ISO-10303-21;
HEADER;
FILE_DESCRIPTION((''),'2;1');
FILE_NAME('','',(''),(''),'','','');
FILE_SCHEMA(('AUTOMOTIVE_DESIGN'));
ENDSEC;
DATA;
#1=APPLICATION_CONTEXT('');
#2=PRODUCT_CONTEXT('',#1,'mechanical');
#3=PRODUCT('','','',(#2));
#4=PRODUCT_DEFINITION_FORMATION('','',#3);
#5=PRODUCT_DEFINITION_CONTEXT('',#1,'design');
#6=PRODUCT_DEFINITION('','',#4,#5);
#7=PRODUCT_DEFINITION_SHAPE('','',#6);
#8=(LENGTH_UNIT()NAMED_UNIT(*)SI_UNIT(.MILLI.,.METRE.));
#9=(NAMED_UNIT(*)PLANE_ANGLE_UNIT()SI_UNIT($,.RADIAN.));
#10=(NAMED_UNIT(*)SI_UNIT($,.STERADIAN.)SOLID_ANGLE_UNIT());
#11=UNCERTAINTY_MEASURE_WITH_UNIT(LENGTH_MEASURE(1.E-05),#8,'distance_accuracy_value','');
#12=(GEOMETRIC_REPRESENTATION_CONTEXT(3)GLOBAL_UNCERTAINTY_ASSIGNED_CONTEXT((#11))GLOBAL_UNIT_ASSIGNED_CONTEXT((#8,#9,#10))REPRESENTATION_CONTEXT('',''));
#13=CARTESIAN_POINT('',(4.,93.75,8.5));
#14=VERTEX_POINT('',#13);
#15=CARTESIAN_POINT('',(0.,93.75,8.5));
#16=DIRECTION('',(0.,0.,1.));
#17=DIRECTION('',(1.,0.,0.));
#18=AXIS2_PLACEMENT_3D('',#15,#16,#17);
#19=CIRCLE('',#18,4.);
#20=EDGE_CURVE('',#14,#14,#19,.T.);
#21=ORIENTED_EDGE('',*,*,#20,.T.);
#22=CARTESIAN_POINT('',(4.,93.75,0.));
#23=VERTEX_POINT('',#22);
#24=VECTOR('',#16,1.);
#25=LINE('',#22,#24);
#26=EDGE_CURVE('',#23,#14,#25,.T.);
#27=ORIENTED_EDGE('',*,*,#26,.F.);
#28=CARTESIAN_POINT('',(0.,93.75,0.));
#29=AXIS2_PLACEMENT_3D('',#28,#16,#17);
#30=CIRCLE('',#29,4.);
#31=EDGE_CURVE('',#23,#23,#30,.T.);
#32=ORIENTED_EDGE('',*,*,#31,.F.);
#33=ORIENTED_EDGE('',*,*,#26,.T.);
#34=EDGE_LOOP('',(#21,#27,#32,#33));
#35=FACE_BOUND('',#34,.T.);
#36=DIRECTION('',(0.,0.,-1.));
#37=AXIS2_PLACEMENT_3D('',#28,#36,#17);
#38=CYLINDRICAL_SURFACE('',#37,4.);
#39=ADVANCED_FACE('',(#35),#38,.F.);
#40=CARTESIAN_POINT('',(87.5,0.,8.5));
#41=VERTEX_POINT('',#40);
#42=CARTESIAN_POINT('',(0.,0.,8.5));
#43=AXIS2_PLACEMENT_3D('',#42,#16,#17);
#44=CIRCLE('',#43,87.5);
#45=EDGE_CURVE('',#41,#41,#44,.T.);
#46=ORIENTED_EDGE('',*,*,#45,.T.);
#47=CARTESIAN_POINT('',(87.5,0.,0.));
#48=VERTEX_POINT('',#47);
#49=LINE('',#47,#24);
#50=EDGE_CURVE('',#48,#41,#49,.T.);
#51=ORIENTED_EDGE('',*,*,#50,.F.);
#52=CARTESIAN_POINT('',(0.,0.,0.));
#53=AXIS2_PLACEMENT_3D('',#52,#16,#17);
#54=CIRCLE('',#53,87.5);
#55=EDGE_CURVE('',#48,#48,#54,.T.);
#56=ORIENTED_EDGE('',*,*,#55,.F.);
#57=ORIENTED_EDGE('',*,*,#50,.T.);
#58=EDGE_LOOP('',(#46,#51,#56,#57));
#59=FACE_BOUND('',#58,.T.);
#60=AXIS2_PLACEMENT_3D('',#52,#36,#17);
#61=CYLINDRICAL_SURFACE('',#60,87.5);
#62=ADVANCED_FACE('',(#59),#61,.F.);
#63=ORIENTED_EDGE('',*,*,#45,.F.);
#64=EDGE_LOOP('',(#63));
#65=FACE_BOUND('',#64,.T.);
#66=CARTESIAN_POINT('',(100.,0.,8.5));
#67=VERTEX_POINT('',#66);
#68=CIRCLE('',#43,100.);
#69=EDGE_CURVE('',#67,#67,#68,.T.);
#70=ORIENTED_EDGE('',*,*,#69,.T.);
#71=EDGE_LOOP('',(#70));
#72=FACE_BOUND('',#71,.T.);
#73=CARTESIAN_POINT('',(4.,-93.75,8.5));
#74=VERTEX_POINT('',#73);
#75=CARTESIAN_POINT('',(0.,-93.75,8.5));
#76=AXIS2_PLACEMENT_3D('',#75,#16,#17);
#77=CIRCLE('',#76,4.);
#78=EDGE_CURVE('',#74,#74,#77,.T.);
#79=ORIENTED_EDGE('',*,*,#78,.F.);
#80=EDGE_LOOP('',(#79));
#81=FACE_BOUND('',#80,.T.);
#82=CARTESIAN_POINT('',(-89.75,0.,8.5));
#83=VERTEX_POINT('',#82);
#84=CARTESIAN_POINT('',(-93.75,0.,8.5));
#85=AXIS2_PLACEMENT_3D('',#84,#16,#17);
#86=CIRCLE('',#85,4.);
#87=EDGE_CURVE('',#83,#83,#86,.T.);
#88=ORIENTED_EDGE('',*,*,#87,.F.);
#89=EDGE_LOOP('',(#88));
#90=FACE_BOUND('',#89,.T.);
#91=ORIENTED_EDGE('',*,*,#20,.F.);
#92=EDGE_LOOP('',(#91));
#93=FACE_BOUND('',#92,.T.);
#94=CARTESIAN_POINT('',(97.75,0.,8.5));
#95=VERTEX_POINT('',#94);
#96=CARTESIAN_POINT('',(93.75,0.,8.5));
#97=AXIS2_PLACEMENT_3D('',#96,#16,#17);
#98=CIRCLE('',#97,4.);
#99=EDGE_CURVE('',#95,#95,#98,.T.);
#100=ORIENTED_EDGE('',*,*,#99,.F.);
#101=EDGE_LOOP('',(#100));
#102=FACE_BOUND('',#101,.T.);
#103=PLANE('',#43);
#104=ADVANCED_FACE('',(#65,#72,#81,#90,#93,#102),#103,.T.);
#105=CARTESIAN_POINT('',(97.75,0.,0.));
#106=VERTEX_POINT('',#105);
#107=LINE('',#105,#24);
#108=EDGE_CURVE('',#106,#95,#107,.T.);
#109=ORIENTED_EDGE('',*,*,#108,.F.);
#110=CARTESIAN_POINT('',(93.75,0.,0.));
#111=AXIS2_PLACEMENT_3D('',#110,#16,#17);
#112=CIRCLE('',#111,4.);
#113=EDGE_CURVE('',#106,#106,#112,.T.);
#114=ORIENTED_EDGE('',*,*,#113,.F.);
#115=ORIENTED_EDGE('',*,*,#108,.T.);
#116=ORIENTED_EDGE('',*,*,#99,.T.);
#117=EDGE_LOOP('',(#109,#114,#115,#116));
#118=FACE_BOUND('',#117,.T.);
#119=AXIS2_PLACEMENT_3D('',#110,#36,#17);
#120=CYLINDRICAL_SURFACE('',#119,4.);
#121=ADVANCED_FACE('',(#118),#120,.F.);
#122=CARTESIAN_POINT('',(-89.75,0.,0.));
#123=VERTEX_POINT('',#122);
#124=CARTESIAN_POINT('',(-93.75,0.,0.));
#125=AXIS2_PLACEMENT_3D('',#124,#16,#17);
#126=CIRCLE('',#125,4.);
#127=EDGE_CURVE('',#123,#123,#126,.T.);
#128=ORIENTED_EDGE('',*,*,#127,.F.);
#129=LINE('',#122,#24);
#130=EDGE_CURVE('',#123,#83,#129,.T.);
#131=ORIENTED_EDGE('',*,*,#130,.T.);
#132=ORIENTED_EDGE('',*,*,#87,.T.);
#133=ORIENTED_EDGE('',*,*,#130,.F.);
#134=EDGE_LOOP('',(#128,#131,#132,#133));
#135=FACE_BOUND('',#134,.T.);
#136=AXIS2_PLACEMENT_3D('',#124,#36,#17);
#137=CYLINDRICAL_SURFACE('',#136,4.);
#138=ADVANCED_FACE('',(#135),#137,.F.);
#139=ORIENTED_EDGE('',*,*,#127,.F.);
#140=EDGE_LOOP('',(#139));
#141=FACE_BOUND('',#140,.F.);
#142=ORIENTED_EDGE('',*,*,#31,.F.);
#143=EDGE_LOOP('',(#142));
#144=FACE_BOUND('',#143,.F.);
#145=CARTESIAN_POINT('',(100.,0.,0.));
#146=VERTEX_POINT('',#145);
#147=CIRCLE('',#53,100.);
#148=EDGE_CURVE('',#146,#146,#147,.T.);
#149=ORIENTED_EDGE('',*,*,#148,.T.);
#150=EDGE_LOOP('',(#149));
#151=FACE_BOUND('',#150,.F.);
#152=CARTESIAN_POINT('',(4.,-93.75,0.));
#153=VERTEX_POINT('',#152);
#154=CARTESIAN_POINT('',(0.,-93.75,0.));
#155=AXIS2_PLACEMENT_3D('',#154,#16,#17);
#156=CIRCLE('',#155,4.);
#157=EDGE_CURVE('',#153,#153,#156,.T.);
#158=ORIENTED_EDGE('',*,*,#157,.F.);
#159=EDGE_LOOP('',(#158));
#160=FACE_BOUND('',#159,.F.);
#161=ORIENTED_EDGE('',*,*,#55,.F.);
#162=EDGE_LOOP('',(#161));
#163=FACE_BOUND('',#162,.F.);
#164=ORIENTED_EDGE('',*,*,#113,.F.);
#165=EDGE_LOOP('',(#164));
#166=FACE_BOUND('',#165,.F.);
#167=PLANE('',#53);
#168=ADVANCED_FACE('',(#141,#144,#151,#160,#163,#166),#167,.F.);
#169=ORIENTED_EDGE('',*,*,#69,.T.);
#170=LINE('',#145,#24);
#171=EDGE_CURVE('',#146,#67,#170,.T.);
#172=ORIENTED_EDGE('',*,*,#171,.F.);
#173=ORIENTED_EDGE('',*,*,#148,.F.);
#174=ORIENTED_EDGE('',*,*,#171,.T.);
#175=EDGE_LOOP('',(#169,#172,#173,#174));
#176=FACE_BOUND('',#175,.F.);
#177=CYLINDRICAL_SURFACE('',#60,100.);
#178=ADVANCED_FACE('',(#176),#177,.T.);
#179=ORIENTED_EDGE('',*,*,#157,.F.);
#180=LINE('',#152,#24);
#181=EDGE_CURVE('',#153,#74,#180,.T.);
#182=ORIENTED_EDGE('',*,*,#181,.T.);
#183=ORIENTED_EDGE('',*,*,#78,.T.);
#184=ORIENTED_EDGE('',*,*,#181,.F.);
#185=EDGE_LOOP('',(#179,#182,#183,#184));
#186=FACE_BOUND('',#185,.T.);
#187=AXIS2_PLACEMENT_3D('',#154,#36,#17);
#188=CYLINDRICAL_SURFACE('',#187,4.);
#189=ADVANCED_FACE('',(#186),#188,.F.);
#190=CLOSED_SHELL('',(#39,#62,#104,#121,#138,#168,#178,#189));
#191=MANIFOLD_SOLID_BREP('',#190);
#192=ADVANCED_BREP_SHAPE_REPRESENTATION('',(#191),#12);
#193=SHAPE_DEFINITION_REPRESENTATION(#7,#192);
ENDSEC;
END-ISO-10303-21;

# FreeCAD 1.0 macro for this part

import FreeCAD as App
import Part
import Sketcher
Q = App.Units.Quantity

doc = App.newDocument("Part")
body = doc.addObject("PartDesign::Body", "Body")

sketch1 = body.newObject("Sketcher::SketchObject", "Sketch")
sketch1.AttachmentSupport = (doc.getObject("XY_Plane"), [""])
sketch1.MapMode = "FlatFace"
sketch1.addGeometry([
    Part.Circle(App.Vector(0, 0, 0), App.Vector(0, 0, 1), 100),
    Part.Circle(App.Vector(0, -93.8, 0), App.Vector(0, 0, 1), 4),
    Part.Circle(App.Vector(-93.8, 0, 0), App.Vector(0, 0, 1), 4),
    Part.Circle(App.Vector(0, 0, 0), App.Vector(0, 0, 1), 87.5),
    Part.Circle(App.Vector(93.8, 0, 0), App.Vector(0, 0, 1), 4),
    Part.Circle(App.Vector(0, 93.8, 0), App.Vector(0, 0, 1), 4),
], False)
sketch1.addConstraint([
    Sketcher.Constraint("Coincident", 0, 3, -1, 1),
    Sketcher.Constraint("Coincident", 3, 3, -1, 1),
    Sketcher.Constraint("Equal", 1, 2),
    Sketcher.Constraint("Equal", 2, 4),
    Sketcher.Constraint("Equal", 4, 5),
    Sketcher.Constraint("Symmetric", 2, 3, 4, 3, -1, 1),
    Sketcher.Constraint("Symmetric", 1, 3, 5, 3, -1, 1),
    Sketcher.Constraint("PointOnObject", 1, 3, -2),
    Sketcher.Constraint("PointOnObject", 2, 3, -1),
    Sketcher.Constraint("Diameter", 0, Q("200 mm")),
    Sketcher.Constraint("Diameter", 1, Q("8 mm")),
    Sketcher.Constraint("Diameter", 3, Q("175 mm")),
    Sketcher.Constraint("DistanceX", 2, 3, 4, 3, Q("187.5 mm")),
    Sketcher.Constraint("DistanceY", 1, 3, 5, 3, Q("187.5 mm")),
])
pad1 = body.newObject("PartDesign::Pad", "Pad")
pad1.Profile = sketch1
pad1.Length = 8.5

doc.recompute()
